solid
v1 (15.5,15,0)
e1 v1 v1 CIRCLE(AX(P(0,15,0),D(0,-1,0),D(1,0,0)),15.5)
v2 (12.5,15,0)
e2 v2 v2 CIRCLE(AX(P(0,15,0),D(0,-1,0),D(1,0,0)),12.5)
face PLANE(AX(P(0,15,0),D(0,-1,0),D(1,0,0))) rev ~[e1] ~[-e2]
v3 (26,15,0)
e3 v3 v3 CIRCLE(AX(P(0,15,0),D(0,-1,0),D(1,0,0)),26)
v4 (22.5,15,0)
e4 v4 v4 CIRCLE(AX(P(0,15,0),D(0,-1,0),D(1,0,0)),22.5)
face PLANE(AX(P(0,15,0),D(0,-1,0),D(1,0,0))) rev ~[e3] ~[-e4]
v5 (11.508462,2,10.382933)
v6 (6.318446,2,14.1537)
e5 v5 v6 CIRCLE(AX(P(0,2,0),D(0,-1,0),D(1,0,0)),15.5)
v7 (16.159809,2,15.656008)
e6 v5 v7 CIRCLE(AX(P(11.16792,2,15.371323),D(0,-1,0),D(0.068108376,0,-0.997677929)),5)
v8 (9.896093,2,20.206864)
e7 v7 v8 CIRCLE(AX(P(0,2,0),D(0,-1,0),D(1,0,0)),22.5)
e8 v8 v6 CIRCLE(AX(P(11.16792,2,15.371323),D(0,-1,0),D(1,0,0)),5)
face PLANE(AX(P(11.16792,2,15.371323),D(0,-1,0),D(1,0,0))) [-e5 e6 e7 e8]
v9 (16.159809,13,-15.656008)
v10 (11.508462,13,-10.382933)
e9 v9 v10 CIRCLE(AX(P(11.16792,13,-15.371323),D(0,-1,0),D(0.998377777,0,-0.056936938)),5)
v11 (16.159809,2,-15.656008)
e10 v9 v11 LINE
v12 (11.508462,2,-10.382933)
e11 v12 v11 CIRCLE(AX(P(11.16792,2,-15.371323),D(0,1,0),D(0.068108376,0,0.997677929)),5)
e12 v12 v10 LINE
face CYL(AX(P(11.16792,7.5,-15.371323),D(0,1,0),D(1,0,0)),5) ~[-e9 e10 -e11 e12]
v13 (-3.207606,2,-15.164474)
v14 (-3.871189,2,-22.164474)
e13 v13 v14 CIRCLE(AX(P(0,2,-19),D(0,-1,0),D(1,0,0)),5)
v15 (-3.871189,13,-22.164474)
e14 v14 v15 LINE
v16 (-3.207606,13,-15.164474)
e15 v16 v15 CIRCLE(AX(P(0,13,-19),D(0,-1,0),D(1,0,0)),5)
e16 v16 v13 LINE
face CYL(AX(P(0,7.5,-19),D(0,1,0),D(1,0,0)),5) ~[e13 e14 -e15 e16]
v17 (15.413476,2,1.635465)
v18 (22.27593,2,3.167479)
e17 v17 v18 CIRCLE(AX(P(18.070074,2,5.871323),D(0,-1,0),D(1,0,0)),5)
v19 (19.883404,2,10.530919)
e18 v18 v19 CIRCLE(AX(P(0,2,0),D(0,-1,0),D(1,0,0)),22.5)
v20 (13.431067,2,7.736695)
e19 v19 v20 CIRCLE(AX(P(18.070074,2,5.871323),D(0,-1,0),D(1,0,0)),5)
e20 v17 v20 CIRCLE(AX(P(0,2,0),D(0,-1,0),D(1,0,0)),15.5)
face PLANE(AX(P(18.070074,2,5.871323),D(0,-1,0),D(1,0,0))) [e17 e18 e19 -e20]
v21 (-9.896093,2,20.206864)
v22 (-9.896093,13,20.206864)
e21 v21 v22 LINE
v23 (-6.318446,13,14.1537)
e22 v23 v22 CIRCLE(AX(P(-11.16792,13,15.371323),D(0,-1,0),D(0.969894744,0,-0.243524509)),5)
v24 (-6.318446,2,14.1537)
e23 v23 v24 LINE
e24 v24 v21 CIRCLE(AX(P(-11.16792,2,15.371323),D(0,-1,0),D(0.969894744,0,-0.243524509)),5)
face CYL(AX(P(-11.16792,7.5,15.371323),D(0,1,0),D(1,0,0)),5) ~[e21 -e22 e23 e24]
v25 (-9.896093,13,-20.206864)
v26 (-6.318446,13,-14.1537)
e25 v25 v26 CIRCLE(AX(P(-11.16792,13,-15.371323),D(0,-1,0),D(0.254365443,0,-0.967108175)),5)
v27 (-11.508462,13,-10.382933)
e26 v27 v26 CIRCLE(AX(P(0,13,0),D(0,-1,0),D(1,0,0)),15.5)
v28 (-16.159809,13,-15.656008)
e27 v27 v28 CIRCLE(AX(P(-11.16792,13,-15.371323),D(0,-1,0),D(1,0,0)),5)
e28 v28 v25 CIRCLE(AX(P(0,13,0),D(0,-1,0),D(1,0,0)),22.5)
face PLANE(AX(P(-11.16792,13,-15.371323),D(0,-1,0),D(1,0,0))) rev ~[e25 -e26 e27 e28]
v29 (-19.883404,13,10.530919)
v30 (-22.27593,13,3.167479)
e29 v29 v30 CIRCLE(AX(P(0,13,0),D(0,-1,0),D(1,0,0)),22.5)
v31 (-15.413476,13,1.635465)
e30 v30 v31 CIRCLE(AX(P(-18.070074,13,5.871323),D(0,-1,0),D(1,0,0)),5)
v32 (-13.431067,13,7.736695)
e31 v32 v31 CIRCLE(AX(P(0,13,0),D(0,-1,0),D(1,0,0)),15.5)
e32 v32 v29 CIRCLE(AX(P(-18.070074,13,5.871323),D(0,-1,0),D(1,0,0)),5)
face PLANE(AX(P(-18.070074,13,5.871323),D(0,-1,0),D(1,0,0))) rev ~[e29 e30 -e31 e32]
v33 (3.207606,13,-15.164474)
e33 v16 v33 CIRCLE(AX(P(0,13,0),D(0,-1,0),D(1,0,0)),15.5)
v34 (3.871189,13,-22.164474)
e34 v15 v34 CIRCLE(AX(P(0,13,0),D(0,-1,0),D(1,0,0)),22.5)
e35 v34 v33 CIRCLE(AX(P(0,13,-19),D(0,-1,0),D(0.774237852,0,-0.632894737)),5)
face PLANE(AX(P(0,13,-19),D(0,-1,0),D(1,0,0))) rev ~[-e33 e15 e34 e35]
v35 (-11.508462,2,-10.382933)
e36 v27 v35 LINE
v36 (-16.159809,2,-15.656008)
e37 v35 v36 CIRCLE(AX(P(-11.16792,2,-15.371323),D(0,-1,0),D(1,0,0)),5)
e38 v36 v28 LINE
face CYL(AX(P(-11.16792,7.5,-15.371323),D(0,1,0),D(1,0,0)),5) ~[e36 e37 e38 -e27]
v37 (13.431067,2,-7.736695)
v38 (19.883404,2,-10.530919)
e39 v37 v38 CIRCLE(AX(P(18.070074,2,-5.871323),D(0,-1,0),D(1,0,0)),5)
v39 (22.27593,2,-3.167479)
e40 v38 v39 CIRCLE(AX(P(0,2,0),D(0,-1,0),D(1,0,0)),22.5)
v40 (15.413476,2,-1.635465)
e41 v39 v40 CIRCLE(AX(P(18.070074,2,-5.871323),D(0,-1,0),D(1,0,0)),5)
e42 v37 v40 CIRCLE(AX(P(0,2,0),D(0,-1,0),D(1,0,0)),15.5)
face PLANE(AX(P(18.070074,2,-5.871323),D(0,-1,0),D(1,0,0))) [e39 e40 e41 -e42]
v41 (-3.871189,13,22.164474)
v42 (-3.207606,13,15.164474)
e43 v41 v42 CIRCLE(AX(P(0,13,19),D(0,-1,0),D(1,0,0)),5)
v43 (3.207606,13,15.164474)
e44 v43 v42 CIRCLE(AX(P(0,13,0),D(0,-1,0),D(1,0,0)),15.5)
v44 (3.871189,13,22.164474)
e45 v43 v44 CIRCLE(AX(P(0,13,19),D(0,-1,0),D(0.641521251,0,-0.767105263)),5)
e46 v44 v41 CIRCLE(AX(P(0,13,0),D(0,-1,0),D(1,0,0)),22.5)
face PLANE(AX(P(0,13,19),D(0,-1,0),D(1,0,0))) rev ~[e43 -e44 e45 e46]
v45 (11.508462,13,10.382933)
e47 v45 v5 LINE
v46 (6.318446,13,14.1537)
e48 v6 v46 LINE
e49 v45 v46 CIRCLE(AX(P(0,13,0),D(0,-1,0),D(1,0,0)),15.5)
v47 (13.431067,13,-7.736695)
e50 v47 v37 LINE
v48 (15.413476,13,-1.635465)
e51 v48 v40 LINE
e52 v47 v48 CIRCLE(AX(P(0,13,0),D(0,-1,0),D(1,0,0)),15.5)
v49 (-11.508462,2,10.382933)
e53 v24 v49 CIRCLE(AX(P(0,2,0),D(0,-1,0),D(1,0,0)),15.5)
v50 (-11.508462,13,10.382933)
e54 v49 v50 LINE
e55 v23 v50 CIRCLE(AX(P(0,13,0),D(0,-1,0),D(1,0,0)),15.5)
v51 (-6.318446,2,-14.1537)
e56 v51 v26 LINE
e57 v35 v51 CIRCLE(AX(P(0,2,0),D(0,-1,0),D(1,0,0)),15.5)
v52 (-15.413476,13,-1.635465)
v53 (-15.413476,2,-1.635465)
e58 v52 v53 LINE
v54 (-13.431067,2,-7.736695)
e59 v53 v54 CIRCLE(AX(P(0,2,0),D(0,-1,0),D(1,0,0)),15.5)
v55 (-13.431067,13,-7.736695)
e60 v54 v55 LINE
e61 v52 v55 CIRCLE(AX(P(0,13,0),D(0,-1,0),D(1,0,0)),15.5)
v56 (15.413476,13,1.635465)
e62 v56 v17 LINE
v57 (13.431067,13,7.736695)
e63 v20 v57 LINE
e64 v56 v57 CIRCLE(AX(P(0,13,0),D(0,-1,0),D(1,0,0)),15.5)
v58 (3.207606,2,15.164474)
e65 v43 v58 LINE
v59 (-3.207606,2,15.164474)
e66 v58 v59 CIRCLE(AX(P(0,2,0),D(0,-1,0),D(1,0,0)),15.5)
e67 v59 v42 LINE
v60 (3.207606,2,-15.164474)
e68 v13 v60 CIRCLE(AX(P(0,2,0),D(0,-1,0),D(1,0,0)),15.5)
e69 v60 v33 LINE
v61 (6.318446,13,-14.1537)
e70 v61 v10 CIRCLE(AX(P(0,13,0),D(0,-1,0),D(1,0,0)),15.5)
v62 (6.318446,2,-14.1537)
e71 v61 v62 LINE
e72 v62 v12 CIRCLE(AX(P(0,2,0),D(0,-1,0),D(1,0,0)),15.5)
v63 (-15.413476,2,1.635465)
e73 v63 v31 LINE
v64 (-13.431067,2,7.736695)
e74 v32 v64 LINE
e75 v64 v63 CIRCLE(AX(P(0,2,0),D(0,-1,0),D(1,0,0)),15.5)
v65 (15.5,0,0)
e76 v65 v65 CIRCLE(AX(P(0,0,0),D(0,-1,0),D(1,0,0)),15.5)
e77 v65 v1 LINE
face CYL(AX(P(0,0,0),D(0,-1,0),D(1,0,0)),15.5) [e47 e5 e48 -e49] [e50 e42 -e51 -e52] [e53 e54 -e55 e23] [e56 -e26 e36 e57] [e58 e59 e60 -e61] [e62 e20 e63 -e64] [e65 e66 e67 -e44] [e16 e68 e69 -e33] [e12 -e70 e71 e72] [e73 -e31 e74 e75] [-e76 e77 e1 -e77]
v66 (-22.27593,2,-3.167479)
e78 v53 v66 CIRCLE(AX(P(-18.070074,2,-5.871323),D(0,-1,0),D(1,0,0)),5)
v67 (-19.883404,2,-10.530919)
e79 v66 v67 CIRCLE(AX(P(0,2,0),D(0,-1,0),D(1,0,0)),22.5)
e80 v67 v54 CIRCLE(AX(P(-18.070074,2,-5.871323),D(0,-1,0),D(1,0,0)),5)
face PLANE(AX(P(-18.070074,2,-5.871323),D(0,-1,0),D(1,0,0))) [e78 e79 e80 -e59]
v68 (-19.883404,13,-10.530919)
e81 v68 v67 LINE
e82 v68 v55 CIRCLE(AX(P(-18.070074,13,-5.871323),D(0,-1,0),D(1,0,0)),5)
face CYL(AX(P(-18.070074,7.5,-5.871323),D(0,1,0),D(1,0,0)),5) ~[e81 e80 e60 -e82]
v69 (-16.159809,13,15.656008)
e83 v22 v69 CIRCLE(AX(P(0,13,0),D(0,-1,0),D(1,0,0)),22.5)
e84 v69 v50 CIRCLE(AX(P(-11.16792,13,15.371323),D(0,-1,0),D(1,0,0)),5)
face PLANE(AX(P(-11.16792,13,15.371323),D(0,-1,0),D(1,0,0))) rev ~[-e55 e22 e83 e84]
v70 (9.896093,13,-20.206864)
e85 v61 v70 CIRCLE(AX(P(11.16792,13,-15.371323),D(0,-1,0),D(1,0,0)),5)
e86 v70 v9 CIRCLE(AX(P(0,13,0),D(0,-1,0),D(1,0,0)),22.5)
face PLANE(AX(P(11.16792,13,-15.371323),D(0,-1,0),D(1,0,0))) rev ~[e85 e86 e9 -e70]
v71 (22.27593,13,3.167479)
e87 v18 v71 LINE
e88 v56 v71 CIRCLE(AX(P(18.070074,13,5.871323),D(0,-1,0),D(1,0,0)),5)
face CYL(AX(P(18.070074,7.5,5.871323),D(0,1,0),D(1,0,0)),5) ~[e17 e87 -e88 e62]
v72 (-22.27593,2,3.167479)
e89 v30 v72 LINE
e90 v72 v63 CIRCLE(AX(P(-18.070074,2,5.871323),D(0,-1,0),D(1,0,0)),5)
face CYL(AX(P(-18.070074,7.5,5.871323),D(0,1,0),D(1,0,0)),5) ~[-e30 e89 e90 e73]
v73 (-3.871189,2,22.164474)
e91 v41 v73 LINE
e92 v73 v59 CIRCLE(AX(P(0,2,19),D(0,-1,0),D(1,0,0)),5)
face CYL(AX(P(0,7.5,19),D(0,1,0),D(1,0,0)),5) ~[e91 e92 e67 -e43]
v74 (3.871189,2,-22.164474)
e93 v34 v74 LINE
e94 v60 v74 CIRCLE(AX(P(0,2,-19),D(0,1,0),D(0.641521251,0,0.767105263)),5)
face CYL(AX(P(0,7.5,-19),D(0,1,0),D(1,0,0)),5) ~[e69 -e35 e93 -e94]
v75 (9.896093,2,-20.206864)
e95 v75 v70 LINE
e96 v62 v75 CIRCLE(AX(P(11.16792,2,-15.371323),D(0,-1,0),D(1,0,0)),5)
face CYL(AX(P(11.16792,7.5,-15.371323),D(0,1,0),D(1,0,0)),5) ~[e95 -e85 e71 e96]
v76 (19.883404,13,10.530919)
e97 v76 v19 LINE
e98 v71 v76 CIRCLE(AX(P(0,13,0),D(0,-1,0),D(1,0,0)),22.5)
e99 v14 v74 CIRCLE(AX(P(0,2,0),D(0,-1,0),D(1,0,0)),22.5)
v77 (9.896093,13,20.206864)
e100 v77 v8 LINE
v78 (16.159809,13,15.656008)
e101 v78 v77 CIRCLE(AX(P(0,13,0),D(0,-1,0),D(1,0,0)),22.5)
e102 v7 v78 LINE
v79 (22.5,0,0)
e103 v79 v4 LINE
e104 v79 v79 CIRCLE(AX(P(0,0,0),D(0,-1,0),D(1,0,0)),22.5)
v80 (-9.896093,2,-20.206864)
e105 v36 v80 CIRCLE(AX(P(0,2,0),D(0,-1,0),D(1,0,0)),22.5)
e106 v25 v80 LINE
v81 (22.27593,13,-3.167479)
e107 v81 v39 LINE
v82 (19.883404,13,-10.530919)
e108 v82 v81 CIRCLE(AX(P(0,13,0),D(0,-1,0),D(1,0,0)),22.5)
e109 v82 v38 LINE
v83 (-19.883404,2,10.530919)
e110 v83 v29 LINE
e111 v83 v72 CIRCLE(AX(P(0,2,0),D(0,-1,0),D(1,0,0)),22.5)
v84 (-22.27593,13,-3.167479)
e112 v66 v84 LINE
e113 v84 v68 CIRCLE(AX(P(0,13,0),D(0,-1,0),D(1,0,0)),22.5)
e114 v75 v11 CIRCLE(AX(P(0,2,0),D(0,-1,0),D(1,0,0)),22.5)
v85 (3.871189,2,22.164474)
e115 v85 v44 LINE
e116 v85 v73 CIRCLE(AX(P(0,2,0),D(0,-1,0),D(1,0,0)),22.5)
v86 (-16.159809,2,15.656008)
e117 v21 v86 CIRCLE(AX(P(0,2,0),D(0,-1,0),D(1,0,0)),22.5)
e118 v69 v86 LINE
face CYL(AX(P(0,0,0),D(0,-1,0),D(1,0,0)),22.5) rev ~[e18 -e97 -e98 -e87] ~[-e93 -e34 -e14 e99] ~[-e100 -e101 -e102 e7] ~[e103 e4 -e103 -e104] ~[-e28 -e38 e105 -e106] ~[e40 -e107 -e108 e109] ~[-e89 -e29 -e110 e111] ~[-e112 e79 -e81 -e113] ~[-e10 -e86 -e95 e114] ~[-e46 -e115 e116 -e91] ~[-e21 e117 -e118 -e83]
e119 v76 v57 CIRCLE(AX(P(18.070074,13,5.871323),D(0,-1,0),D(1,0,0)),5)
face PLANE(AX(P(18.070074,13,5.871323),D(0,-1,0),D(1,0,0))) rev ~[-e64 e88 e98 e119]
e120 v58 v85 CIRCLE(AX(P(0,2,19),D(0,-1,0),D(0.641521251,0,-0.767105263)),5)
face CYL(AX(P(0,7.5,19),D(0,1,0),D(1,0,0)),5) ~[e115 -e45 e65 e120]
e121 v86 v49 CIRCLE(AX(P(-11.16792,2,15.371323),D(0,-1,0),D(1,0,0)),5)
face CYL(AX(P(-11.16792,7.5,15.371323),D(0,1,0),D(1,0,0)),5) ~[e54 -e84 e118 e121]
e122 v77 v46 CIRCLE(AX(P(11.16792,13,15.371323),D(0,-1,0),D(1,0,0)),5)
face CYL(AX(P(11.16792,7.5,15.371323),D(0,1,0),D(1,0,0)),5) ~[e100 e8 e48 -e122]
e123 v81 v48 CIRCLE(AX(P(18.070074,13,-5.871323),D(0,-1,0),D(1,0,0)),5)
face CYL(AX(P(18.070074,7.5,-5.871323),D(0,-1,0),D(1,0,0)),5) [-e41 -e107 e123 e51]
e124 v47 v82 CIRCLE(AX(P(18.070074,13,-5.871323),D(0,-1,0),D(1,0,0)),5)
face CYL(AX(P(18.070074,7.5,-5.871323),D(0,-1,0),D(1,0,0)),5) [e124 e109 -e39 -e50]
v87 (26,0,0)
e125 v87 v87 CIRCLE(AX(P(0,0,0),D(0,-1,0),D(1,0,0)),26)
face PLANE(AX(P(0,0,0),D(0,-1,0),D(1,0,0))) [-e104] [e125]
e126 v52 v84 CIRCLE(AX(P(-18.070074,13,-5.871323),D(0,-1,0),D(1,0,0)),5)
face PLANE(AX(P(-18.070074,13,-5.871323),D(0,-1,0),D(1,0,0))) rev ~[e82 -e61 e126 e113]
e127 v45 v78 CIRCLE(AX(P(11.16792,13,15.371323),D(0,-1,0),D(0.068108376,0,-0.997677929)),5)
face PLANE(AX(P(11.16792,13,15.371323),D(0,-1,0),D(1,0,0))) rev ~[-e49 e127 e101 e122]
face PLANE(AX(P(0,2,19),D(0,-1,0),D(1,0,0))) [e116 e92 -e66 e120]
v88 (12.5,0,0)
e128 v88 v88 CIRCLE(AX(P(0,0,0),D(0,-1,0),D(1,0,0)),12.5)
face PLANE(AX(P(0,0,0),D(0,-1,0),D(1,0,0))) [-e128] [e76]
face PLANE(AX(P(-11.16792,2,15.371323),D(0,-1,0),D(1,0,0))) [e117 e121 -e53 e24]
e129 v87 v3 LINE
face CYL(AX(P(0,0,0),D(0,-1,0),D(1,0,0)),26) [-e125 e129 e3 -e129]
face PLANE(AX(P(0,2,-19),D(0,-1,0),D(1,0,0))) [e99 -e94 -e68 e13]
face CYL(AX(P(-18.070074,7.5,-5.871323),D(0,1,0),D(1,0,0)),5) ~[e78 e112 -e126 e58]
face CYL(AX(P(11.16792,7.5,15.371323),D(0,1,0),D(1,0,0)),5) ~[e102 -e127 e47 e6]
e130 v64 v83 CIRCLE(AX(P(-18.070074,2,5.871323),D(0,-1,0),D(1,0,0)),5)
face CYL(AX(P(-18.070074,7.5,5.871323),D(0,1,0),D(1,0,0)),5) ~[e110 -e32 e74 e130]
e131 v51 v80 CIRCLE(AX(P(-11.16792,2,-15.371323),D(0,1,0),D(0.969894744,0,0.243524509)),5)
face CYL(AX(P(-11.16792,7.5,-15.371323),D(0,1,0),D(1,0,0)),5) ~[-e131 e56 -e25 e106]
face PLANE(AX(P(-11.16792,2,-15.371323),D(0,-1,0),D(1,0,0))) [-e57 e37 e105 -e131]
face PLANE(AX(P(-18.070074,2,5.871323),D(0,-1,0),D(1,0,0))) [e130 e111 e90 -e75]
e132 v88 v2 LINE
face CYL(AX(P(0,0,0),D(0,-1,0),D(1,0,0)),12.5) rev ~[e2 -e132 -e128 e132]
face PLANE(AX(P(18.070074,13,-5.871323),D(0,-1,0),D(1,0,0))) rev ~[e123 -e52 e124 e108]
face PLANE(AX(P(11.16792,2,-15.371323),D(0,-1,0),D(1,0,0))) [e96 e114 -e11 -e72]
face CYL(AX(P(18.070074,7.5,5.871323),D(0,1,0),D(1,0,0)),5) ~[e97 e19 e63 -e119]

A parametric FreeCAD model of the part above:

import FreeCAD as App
import Part
import Sketcher
from FreeCAD import Vector
Q = App.Units.Quantity

doc = App.newDocument("Part")
params = doc.addObject("Spreadsheet::Sheet", "Params")
for row, (alias, value) in enumerate([
    ("sketch1_diameter", "52 mm"),
    ("sketch1_diameter2", "45 mm"),
    ("sketch1_diameter3", "31 mm"),
    ("sketch1_diameter4", "25 mm"),
    ("pad1_length", "15 mm"),
    ("sketch2_diameter", "10 mm"),
    ("pad2_length", "11 mm"),
], start=1):
    params.set(f"A{row}", alias)
    params.set(f"B{row}", "=" + value)
    params.setAlias(f"B{row}", alias)

body = doc.addObject("PartDesign::Body", "Body")
body.AllowCompound = True

sketch1 = body.newObject("Sketcher::SketchObject", "Sketch")
sketch1.AttachmentSupport = (doc.getObject("XZ_Plane"), [""])
sketch1.MapMode = "FlatFace"
sketch1.addGeometry([
    Part.Circle(Vector(0, 0, 0), Vector(0, 0, 1), 26),
    Part.Circle(Vector(0, 0, 0), Vector(0, 0, 1), 22),
    Part.Circle(Vector(0, 0, 0), Vector(0, 0, 1), 16),
    Part.Circle(Vector(0, 0, 0), Vector(0, 0, 1), 12),
], False)
sketch1.addConstraint([
    Sketcher.Constraint("Coincident", 0, 3, -1, 1),
    Sketcher.Constraint("Coincident", 1, 3, -1, 1),
    Sketcher.Constraint("Coincident", 2, 3, -1, 1),
    Sketcher.Constraint("Coincident", 3, 3, -1, 1),
    Sketcher.Constraint("Diameter", 0, Q("52 mm")),
    Sketcher.Constraint("Diameter", 1, Q("45 mm")),
    Sketcher.Constraint("Diameter", 2, Q("31 mm")),
    Sketcher.Constraint("Diameter", 3, Q("25 mm")),
])
sketch1.setExpression("Constraints[4]", "Params.sketch1_diameter")
sketch1.setExpression("Constraints[5]", "Params.sketch1_diameter2")
sketch1.setExpression("Constraints[6]", "Params.sketch1_diameter3")
sketch1.setExpression("Constraints[7]", "Params.sketch1_diameter4")
pad1 = body.newObject("PartDesign::Pad", "Pad")
pad1.Profile = sketch1
pad1.setExpression("Length", "Params.pad1_length")
pad1.Reversed = True

sketch2 = body.newObject("Sketcher::SketchObject", "Sketch001")
sketch2.AttachmentSupport = (doc.getObject("XZ_Plane"), [""])
sketch2.MapMode = "FlatFace"
sketch2.AttachmentOffset = App.Placement(Vector(0, 0, -7.5), App.Rotation())
sketch2.addGeometry([
    Part.Circle(Vector(0, 19, 0), Vector(0, 0, 1), 5),
    Part.Circle(Vector(-11, 15, 0), Vector(0, 0, 1), 5),
    Part.Circle(Vector(-18, 6, 0), Vector(0, 0, 1), 5),
    Part.Circle(Vector(-18, -6, 0), Vector(0, 0, 1), 5),
    Part.Circle(Vector(0, -19, 0), Vector(0, 0, 1), 5),
    Part.Circle(Vector(18, 6, 0), Vector(0, 0, 1), 5),
    Part.Circle(Vector(-11, -15, 0), Vector(0, 0, 1), 5),
    Part.Circle(Vector(11, -15, 0), Vector(0, 0, 1), 5),
    Part.Circle(Vector(11, 15, 0), Vector(0, 0, 1), 5),
    Part.Circle(Vector(18, -6, 0), Vector(0, 0, 1), 5),
], False)
sketch2.addConstraint([
    Sketcher.Constraint("Equal", 0, 1),
    Sketcher.Constraint("Equal", 1, 2),
    Sketcher.Constraint("Equal", 2, 3),
    Sketcher.Constraint("Equal", 3, 4),
    Sketcher.Constraint("Equal", 4, 5),
    Sketcher.Constraint("Equal", 5, 6),
    Sketcher.Constraint("Equal", 6, 7),
    Sketcher.Constraint("Equal", 7, 8),
    Sketcher.Constraint("Equal", 8, 9),
    Sketcher.Constraint("Symmetric", 0, 3, 4, 3, -1, 1),
    Sketcher.Constraint("Symmetric", 3, 3, 5, 3, -1, 1),
    Sketcher.Constraint("Symmetric", 1, 3, 7, 3, -1, 1),
    Sketcher.Constraint("Symmetric", 6, 3, 8, 3, -1, 1),
    Sketcher.Constraint("Symmetric", 2, 3, 9, 3, -1, 1),
    Sketcher.Constraint("Symmetric", 2, 3, 5, 3, -2),
    Sketcher.Constraint("Symmetric", 6, 3, 7, 3, -2),
    Sketcher.Constraint("PointOnObject", 0, 3, -2),
    Sketcher.Constraint("Diameter", 0, Q("10 mm")),
    Sketcher.Constraint("DistanceY", -1, 1, 0, 3, Q("19 mm")),
    Sketcher.Constraint("DistanceY", 2, 3, 1, 3, Q("9.5 mm")),
    Sketcher.Constraint("DistanceX", 1, 3, -1, 1, Q("11.16792 mm")),
    Sketcher.Constraint("DistanceX", 2, 3, 5, 3, Q("36.140148 mm")),
    Sketcher.Constraint("DistanceY", -1, 1, 1, 3, Q("15.371323 mm")),
])
sketch2.setExpression("Constraints[17]", "Params.sketch2_diameter")
pad2 = body.newObject("PartDesign::Pad", "Pad001")
pad2.Profile = sketch2
pad2.setExpression("Length", "Params.pad2_length")
pad2.Midplane = True

doc.recompute()
